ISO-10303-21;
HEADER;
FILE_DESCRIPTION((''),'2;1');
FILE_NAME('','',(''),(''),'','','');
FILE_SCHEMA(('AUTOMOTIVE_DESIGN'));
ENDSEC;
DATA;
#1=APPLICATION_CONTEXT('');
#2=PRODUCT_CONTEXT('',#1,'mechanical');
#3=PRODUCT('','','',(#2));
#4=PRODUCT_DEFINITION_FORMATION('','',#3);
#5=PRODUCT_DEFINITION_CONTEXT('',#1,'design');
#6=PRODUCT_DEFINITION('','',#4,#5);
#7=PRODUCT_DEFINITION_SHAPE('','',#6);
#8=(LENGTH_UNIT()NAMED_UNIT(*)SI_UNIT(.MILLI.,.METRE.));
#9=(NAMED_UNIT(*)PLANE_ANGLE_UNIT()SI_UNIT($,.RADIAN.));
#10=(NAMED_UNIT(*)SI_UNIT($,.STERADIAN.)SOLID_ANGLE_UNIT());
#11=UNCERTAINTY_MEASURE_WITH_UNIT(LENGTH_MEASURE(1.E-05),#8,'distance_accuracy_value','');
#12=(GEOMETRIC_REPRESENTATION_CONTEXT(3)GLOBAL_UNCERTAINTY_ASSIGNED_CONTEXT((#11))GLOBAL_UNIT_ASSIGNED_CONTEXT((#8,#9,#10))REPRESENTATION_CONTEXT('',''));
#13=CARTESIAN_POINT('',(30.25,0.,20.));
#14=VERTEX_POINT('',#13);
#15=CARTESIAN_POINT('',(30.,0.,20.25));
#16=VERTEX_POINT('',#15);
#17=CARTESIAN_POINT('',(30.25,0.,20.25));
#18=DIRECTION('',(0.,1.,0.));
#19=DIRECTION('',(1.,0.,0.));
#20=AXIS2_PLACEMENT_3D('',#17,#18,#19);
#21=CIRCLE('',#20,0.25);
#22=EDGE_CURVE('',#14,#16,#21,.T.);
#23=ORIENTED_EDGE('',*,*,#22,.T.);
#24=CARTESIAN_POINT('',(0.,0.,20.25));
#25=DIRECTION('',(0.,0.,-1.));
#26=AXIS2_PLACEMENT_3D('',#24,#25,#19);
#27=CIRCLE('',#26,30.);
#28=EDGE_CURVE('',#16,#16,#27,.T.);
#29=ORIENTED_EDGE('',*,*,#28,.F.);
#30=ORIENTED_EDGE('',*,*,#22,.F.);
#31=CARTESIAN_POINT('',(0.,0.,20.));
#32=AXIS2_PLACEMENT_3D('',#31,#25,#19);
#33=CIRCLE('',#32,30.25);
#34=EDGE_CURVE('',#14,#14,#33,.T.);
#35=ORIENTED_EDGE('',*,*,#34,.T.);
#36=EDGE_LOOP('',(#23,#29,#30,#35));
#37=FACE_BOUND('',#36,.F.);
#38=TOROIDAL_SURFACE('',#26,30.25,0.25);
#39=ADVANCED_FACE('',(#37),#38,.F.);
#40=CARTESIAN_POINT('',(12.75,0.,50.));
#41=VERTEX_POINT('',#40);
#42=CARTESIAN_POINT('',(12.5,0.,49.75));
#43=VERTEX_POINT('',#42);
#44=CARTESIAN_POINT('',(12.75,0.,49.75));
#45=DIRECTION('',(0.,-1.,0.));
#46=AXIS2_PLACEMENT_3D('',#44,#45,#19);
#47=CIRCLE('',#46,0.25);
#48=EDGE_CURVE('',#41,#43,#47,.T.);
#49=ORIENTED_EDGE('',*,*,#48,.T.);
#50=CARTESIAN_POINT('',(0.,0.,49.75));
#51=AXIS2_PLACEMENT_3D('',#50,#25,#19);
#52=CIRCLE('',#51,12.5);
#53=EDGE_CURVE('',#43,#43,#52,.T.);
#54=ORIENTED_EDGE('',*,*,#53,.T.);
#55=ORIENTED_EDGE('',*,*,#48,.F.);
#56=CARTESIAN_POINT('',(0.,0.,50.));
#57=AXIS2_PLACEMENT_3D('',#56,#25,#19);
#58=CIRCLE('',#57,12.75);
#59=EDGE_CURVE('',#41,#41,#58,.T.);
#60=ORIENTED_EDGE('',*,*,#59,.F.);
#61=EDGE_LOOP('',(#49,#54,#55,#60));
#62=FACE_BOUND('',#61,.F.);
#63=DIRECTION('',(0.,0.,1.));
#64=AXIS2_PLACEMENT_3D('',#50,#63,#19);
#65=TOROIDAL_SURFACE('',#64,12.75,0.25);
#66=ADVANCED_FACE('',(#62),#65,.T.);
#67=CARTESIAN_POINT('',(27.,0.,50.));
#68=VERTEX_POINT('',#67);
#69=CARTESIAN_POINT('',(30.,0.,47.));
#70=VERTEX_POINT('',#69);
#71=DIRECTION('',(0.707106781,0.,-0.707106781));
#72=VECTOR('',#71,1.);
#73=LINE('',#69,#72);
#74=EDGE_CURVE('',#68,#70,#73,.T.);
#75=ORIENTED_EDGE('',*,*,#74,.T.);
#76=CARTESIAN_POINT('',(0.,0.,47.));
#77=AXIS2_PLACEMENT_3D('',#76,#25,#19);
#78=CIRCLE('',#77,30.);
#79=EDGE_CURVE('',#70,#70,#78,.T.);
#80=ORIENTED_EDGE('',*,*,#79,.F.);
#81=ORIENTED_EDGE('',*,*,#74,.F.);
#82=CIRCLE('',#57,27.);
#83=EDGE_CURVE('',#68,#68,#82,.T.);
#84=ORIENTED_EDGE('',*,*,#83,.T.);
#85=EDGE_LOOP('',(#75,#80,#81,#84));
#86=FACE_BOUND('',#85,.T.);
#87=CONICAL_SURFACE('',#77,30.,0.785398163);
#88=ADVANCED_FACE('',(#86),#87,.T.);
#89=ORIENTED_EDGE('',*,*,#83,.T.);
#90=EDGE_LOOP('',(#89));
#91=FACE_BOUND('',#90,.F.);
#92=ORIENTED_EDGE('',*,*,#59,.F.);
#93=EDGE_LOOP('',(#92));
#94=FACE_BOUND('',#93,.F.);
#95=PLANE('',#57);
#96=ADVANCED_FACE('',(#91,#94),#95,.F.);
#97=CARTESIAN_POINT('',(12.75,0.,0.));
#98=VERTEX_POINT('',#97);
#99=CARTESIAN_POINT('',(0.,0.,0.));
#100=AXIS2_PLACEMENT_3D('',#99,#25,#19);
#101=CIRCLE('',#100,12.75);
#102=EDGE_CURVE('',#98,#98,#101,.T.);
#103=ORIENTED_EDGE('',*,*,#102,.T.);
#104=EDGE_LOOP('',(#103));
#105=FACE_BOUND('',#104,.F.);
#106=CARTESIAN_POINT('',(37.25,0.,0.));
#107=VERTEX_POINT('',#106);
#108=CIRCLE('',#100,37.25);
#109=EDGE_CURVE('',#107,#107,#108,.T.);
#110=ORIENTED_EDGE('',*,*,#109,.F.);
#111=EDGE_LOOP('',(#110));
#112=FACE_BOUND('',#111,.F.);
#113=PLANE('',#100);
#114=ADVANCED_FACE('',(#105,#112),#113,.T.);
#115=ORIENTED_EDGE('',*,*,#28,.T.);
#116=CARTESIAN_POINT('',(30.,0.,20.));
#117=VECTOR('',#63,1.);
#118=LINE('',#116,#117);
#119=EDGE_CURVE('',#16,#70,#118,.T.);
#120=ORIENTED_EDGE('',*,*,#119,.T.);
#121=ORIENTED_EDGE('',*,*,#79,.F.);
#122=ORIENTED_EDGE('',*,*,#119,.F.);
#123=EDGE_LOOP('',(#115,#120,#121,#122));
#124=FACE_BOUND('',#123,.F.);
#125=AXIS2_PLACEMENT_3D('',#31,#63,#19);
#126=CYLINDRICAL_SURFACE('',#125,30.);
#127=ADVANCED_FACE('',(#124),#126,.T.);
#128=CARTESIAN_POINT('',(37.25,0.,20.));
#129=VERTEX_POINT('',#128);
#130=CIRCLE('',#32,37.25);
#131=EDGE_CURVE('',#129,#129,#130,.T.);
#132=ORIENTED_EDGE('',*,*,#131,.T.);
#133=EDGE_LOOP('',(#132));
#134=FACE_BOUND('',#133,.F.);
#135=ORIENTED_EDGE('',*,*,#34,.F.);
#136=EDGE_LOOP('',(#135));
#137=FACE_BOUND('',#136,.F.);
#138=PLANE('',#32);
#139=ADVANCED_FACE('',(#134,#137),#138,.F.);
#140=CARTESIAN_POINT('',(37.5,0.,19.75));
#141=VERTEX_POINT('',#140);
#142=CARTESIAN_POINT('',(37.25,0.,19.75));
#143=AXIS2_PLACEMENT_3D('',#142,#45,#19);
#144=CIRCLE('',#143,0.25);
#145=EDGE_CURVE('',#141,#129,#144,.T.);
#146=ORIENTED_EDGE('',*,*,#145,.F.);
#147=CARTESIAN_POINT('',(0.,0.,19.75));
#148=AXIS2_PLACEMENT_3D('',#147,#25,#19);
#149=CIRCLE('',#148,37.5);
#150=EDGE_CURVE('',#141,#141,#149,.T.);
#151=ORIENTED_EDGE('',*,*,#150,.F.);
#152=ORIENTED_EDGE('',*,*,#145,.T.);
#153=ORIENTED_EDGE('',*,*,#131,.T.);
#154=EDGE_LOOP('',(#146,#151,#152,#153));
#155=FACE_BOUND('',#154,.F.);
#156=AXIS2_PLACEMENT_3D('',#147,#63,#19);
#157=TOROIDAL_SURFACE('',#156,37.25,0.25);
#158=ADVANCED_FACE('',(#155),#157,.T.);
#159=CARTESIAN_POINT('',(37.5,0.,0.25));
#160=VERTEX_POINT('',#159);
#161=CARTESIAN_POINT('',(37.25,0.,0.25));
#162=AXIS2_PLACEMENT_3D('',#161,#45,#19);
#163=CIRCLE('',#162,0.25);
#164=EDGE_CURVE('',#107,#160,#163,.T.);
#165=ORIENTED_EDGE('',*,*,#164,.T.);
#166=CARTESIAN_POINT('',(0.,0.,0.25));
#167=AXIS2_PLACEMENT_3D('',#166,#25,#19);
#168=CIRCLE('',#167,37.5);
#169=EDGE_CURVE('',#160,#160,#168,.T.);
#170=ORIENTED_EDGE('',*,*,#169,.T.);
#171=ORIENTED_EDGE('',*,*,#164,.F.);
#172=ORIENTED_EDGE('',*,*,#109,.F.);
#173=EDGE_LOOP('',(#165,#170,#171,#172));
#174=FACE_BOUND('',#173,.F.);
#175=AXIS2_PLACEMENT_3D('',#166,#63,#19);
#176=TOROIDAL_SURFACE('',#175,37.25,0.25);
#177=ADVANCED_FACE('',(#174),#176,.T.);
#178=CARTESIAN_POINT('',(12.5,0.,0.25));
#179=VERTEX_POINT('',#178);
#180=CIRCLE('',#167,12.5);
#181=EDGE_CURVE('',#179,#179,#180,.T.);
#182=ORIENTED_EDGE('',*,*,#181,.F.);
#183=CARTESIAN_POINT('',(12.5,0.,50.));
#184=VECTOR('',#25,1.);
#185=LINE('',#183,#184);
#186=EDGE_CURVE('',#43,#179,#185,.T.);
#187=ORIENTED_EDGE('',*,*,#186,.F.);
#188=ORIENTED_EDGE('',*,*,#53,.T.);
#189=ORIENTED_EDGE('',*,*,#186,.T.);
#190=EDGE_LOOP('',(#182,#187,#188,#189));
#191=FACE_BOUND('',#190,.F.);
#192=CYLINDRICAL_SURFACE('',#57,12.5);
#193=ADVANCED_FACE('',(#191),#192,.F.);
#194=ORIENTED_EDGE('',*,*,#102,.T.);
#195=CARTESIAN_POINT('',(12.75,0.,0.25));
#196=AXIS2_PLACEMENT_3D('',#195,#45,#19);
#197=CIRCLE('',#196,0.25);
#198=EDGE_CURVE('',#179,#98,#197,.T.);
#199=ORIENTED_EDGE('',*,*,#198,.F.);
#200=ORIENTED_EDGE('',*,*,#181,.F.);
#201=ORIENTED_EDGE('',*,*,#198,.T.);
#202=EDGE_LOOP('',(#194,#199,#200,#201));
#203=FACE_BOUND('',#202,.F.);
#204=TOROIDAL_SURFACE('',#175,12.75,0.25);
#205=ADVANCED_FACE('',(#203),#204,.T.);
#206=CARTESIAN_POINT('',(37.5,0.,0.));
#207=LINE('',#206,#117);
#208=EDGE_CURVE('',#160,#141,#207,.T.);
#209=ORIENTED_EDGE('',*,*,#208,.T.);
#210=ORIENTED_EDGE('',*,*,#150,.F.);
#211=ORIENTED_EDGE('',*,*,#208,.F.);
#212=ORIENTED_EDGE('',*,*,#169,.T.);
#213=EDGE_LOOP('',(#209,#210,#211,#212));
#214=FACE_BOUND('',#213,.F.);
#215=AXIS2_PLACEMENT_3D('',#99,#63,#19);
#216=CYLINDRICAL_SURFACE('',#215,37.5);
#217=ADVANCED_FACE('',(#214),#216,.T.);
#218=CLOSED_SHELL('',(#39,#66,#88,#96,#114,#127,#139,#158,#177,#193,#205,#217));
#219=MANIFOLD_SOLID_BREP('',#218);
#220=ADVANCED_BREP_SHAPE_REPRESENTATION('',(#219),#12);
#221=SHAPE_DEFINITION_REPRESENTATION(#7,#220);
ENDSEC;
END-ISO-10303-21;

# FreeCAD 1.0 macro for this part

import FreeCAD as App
import Part
import Sketcher
from FreeCAD import Vector
Q = App.Units.Quantity


def edges_at(feature, points):
    """Names of the edges that pass closest to the given points."""
    edges = feature.Shape.Edges
    near = lambda p: min(range(len(edges)), key=lambda i: edges[i].distToShape(Part.Vertex(*p))[0])
    return sorted({f"Edge{near(p) + 1}" for p in points})


def add_polygon(sketch, points):
    """Adds a closed chain of lines whose ends are joined by coincident constraints."""
    first, n = sketch.GeometryCount, len(points)
    for a, b in zip(points, points[1:] + points[:1]):
        sketch.addGeometry(Part.LineSegment(App.Vector(*a, 0), App.Vector(*b, 0)), False)
    for i in range(n):
        sketch.addConstraint(Sketcher.Constraint("Coincident", first + i, 2, first + (i + 1) % n, 1))

doc = App.newDocument("Part")
body = doc.addObject("PartDesign::Body", "Body")

sketch1 = body.newObject("Sketcher::SketchObject", "Sketch")
sketch1.AttachmentSupport = (doc.getObject("XZ_Plane"), [""])
sketch1.MapMode = "FlatFace"
add_polygon(sketch1, [(30, 50), (12, 50), (12, 0), (38, 0), (38, 20), (30, 20)])
sketch1.addConstraint([
    Sketcher.Constraint("Horizontal", 0),
    Sketcher.Constraint("Vertical", 1),
    Sketcher.Constraint("Horizontal", 2),
    Sketcher.Constraint("Vertical", 3),
    Sketcher.Constraint("Horizontal", 4),
    Sketcher.Constraint("Vertical", 5),
    Sketcher.Constraint("PointOnObject", 1, 2, -1),
    Sketcher.Constraint("DistanceX", 2, 1, 2, 2, Q("25 mm")),
    Sketcher.Constraint("DistanceY", 1, 2, 1, 1, Q("50 mm")),
    Sketcher.Constraint("DistanceY", 3, 1, 3, 2, Q("20 mm")),
    Sketcher.Constraint("DistanceX", 0, 2, 0, 1, Q("17.5 mm")),
    Sketcher.Constraint("DistanceX", -1, 1, 4, 2, Q("30 mm")),
])
revolution = body.newObject("PartDesign::Revolution", "Revolution")
revolution.Profile = sketch1
revolution.ReferenceAxis = (sketch1, ["V_Axis"])
revolution.Angle = 360
doc.recompute()

fillet = body.newObject("PartDesign::Fillet", "Fillet")
fillet.Base = (revolution, edges_at(revolution, [
    (-12.5, 0, 50),
    (-12.5, 0, 0),
    (12.5, 0, 25),
    (-37.5, 0, 20),
    (-30, 0, 20),
    (-37.5, 0, 0),
]))
fillet.Radius = 0.25
doc.recompute()

chamfer = body.newObject("PartDesign::Chamfer", "Chamfer")
chamfer.Base = (fillet, edges_at(fillet, [(-30, 0, 50)]))
chamfer.Size = 3

doc.recompute()
